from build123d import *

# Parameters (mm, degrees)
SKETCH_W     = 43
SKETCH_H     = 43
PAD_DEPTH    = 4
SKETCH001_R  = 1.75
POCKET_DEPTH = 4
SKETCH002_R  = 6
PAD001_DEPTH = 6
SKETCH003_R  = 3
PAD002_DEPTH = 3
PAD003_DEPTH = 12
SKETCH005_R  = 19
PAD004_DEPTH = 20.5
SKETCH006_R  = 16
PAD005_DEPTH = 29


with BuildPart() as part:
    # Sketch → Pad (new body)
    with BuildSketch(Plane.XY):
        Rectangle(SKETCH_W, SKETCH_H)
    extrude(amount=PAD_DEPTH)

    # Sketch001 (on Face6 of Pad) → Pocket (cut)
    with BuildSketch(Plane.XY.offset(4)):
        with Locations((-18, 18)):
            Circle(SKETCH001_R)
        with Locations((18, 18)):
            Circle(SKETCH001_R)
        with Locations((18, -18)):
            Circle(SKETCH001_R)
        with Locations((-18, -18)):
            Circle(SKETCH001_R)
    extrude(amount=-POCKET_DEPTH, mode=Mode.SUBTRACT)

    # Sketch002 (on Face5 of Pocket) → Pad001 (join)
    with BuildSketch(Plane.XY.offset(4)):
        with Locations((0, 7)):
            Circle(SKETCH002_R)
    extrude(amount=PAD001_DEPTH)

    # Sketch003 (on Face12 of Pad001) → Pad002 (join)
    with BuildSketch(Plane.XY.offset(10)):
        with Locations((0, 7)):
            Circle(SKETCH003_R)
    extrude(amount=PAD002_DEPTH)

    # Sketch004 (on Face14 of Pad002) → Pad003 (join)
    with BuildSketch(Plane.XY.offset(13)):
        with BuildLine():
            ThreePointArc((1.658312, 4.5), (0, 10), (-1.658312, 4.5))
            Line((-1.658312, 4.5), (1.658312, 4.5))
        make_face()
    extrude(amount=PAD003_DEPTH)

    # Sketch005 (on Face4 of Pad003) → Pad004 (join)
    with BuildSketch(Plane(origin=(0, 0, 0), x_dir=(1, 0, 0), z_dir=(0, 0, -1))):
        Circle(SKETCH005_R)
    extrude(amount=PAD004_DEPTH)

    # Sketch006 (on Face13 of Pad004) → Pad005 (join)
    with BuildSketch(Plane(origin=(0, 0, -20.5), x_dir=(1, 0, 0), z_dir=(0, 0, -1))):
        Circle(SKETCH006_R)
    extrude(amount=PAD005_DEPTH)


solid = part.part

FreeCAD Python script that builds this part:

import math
import FreeCAD as App
import Part
import Sketcher
Q = App.Units.Quantity

doc = App.newDocument("Part")
body = doc.addObject("PartDesign::Body", "Body")

# Sketch on XY plane
sketch1 = body.newObject("Sketcher::SketchObject", "Sketch")
sketch1.AttachmentSupport = (doc.getObject("XY_Plane"), [""])
sketch1.MapMode = "FlatFace"
sketch1.addGeometry(Part.LineSegment(App.Vector(-21.5, 21.5, 0), App.Vector(-21.5, -21.5, 0)), False)
sketch1.addGeometry(Part.LineSegment(App.Vector(-21.5, -21.5, 0), App.Vector(21.5, -21.5, 0)), False)
sketch1.addGeometry(Part.LineSegment(App.Vector(21.5, -21.5, 0), App.Vector(21.5, 21.5, 0)), False)
sketch1.addGeometry(Part.LineSegment(App.Vector(21.5, 21.5, 0), App.Vector(-21.5, 21.5, 0)), False)
sketch1.addConstraint(Sketcher.Constraint("Coincident", 0, 2, 1, 1))
sketch1.addConstraint(Sketcher.Constraint("Coincident", 1, 2, 2, 1))
sketch1.addConstraint(Sketcher.Constraint("Coincident", 2, 2, 3, 1))
sketch1.addConstraint(Sketcher.Constraint("Coincident", 3, 2, 0, 1))
sketch1.addConstraint(Sketcher.Constraint("Vertical", 0))
sketch1.addConstraint(Sketcher.Constraint("Horizontal", 1))
sketch1.addConstraint(Sketcher.Constraint("Vertical", 2))
sketch1.addConstraint(Sketcher.Constraint("Horizontal", 3))
sketch1.addConstraint(Sketcher.Constraint("Symmetric", 0, 2, 2, 2, -1, 1))
sketch1.addConstraint(Sketcher.Constraint("Equal", 3, 0))
sketch1.addConstraint(Sketcher.Constraint("DistanceX", 1, 1, 1, 2, Q("43 mm")))
pad1 = body.newObject("PartDesign::Pad", "Pad")
pad1.Profile = sketch1
pad1.Length = 4

# Sketch on XY plane
sketch2 = body.newObject("Sketcher::SketchObject", "Sketch001")
sketch2.AttachmentSupport = (doc.getObject("XY_Plane"), [""])
sketch2.MapMode = "FlatFace"
sketch2.AttachmentOffset = App.Placement(App.Vector(0, 0, 4), App.Rotation())
sketch2.addGeometry(Part.Circle(App.Vector(-18, 18, 0), App.Vector(0, 0, 1), 1.75), False)
sketch2.addGeometry(Part.Circle(App.Vector(18, 18, 0), App.Vector(0, 0, 1), 1.75), False)
sketch2.addGeometry(Part.Circle(App.Vector(18, -18, 0), App.Vector(0, 0, 1), 1.75), False)
sketch2.addGeometry(Part.Circle(App.Vector(-18, -18, 0), App.Vector(0, 0, 1), 1.75), False)
sketch2.addConstraint(Sketcher.Constraint("Equal", 0, 1))
sketch2.addConstraint(Sketcher.Constraint("Equal", 1, 2))
sketch2.addConstraint(Sketcher.Constraint("Equal", 2, 3))
sketch2.addConstraint(Sketcher.Constraint("Symmetric", 0, 3, 2, 3, -1, 1))
sketch2.addConstraint(Sketcher.Constraint("Symmetric", 1, 3, 3, 3, -1, 1))
sketch2.addConstraint(Sketcher.Constraint("Symmetric", 0, 3, 1, 3, -2))
sketch2.addConstraint(Sketcher.Constraint("Diameter", 0, Q("3.5 mm")))
sketch2.addConstraint(Sketcher.Constraint("DistanceX", 0, 3, -1, 1, Q("18 mm")))
sketch2.addConstraint(Sketcher.Constraint("DistanceY", -1, 1, 0, 3, Q("18 mm")))
pocket1 = body.newObject("PartDesign::Pocket", "Pocket")
pocket1.Profile = sketch2
pocket1.Length = 4

# Sketch on XY plane
sketch3 = body.newObject("Sketcher::SketchObject", "Sketch002")
sketch3.AttachmentSupport = (doc.getObject("XY_Plane"), [""])
sketch3.MapMode = "FlatFace"
sketch3.AttachmentOffset = App.Placement(App.Vector(0, 0, 4), App.Rotation())
sketch3.addGeometry(Part.Circle(App.Vector(0, 7, 0), App.Vector(0, 0, 1), 6), False)
sketch3.addConstraint(Sketcher.Constraint("PointOnObject", 0, 3, -2))
sketch3.addConstraint(Sketcher.Constraint("Diameter", 0, Q("12 mm")))
sketch3.addConstraint(Sketcher.Constraint("DistanceY", -1, 1, 0, 3, Q("7 mm")))
pad2 = body.newObject("PartDesign::Pad", "Pad001")
pad2.Profile = sketch3
pad2.Length = 6

# Sketch on XY plane
sketch4 = body.newObject("Sketcher::SketchObject", "Sketch003")
sketch4.AttachmentSupport = (doc.getObject("XY_Plane"), [""])
sketch4.MapMode = "FlatFace"
sketch4.AttachmentOffset = App.Placement(App.Vector(0, 0, 10), App.Rotation())
sketch4.addGeometry(Part.Circle(App.Vector(0, 7, 0), App.Vector(0, 0, 1), 3), False)
sketch4.addConstraint(Sketcher.Constraint("PointOnObject", 0, 3, -2))
sketch4.addConstraint(Sketcher.Constraint("Diameter", 0, Q("6 mm")))
sketch4.addConstraint(Sketcher.Constraint("DistanceY", -1, 1, 0, 3, Q("7 mm")))
pad3 = body.newObject("PartDesign::Pad", "Pad002")
pad3.Profile = sketch4
pad3.Length = 3

# Sketch on XY plane
sketch5 = body.newObject("Sketcher::SketchObject", "Sketch004")
sketch5.AttachmentSupport = (doc.getObject("XY_Plane"), [""])
sketch5.MapMode = "FlatFace"
sketch5.AttachmentOffset = App.Placement(App.Vector(0, 0, 13), App.Rotation())
sketch5.addGeometry(Part.ArcOfCircle(Part.Circle(App.Vector(0, 7, 0), App.Vector(0, 0, 1), 3), math.radians(-56.442698), math.radians(236.442698)), False)
sketch5.addGeometry(Part.LineSegment(App.Vector(-1.658312, 4.5, 0), App.Vector(1.658312, 4.5, 0)), False)
sketch5.addConstraint(Sketcher.Constraint("Coincident", 0, 1, 1, 2))
sketch5.addConstraint(Sketcher.Constraint("Coincident", 1, 1, 0, 2))
sketch5.addConstraint(Sketcher.Constraint("Horizontal", 1))
sketch5.addConstraint(Sketcher.Constraint("PointOnObject", 0, 3, -2))
sketch5.addConstraint(Sketcher.Constraint("Radius", 0, Q("3 mm")))
sketch5.addConstraint(Sketcher.Constraint("DistanceY", -1, 1, 0, 3, Q("7 mm")))
sketch5.addConstraint(Sketcher.Constraint("DistanceY", -1, 1, 0, 1, Q("4.5 mm")))
pad4 = body.newObject("PartDesign::Pad", "Pad003")
pad4.Profile = sketch5
pad4.Length = 12

# Sketch on XY plane
sketch6 = body.newObject("Sketcher::SketchObject", "Sketch005")
sketch6.AttachmentSupport = (doc.getObject("XY_Plane"), [""])
sketch6.MapMode = "FlatFace"
sketch6.addGeometry(Part.Circle(App.Vector(0, 0, 0), App.Vector(0, 0, 1), 19), False)
sketch6.addConstraint(Sketcher.Constraint("Coincident", 0, 3, -1, 1))
sketch6.addConstraint(Sketcher.Constraint("Diameter", 0, Q("38 mm")))
pad5 = body.newObject("PartDesign::Pad", "Pad004")
pad5.Profile = sketch6
pad5.Length = 20.5
pad5.Reversed = True

# Sketch on XY plane
sketch7 = body.newObject("Sketcher::SketchObject", "Sketch006")
sketch7.AttachmentSupport = (doc.getObject("XY_Plane"), [""])
sketch7.MapMode = "FlatFace"
sketch7.AttachmentOffset = App.Placement(App.Vector(0, 0, -20.5), App.Rotation())
sketch7.addGeometry(Part.Circle(App.Vector(0, 0, 0), App.Vector(0, 0, 1), 16), False)
sketch7.addConstraint(Sketcher.Constraint("Coincident", 0, 3, -1, 1))
sketch7.addConstraint(Sketcher.Constraint("Diameter", 0, Q("32 mm")))
pad6 = body.newObject("PartDesign::Pad", "Pad005")
pad6.Profile = sketch7
pad6.Length = 29
pad6.Reversed = True

doc.recompute()
